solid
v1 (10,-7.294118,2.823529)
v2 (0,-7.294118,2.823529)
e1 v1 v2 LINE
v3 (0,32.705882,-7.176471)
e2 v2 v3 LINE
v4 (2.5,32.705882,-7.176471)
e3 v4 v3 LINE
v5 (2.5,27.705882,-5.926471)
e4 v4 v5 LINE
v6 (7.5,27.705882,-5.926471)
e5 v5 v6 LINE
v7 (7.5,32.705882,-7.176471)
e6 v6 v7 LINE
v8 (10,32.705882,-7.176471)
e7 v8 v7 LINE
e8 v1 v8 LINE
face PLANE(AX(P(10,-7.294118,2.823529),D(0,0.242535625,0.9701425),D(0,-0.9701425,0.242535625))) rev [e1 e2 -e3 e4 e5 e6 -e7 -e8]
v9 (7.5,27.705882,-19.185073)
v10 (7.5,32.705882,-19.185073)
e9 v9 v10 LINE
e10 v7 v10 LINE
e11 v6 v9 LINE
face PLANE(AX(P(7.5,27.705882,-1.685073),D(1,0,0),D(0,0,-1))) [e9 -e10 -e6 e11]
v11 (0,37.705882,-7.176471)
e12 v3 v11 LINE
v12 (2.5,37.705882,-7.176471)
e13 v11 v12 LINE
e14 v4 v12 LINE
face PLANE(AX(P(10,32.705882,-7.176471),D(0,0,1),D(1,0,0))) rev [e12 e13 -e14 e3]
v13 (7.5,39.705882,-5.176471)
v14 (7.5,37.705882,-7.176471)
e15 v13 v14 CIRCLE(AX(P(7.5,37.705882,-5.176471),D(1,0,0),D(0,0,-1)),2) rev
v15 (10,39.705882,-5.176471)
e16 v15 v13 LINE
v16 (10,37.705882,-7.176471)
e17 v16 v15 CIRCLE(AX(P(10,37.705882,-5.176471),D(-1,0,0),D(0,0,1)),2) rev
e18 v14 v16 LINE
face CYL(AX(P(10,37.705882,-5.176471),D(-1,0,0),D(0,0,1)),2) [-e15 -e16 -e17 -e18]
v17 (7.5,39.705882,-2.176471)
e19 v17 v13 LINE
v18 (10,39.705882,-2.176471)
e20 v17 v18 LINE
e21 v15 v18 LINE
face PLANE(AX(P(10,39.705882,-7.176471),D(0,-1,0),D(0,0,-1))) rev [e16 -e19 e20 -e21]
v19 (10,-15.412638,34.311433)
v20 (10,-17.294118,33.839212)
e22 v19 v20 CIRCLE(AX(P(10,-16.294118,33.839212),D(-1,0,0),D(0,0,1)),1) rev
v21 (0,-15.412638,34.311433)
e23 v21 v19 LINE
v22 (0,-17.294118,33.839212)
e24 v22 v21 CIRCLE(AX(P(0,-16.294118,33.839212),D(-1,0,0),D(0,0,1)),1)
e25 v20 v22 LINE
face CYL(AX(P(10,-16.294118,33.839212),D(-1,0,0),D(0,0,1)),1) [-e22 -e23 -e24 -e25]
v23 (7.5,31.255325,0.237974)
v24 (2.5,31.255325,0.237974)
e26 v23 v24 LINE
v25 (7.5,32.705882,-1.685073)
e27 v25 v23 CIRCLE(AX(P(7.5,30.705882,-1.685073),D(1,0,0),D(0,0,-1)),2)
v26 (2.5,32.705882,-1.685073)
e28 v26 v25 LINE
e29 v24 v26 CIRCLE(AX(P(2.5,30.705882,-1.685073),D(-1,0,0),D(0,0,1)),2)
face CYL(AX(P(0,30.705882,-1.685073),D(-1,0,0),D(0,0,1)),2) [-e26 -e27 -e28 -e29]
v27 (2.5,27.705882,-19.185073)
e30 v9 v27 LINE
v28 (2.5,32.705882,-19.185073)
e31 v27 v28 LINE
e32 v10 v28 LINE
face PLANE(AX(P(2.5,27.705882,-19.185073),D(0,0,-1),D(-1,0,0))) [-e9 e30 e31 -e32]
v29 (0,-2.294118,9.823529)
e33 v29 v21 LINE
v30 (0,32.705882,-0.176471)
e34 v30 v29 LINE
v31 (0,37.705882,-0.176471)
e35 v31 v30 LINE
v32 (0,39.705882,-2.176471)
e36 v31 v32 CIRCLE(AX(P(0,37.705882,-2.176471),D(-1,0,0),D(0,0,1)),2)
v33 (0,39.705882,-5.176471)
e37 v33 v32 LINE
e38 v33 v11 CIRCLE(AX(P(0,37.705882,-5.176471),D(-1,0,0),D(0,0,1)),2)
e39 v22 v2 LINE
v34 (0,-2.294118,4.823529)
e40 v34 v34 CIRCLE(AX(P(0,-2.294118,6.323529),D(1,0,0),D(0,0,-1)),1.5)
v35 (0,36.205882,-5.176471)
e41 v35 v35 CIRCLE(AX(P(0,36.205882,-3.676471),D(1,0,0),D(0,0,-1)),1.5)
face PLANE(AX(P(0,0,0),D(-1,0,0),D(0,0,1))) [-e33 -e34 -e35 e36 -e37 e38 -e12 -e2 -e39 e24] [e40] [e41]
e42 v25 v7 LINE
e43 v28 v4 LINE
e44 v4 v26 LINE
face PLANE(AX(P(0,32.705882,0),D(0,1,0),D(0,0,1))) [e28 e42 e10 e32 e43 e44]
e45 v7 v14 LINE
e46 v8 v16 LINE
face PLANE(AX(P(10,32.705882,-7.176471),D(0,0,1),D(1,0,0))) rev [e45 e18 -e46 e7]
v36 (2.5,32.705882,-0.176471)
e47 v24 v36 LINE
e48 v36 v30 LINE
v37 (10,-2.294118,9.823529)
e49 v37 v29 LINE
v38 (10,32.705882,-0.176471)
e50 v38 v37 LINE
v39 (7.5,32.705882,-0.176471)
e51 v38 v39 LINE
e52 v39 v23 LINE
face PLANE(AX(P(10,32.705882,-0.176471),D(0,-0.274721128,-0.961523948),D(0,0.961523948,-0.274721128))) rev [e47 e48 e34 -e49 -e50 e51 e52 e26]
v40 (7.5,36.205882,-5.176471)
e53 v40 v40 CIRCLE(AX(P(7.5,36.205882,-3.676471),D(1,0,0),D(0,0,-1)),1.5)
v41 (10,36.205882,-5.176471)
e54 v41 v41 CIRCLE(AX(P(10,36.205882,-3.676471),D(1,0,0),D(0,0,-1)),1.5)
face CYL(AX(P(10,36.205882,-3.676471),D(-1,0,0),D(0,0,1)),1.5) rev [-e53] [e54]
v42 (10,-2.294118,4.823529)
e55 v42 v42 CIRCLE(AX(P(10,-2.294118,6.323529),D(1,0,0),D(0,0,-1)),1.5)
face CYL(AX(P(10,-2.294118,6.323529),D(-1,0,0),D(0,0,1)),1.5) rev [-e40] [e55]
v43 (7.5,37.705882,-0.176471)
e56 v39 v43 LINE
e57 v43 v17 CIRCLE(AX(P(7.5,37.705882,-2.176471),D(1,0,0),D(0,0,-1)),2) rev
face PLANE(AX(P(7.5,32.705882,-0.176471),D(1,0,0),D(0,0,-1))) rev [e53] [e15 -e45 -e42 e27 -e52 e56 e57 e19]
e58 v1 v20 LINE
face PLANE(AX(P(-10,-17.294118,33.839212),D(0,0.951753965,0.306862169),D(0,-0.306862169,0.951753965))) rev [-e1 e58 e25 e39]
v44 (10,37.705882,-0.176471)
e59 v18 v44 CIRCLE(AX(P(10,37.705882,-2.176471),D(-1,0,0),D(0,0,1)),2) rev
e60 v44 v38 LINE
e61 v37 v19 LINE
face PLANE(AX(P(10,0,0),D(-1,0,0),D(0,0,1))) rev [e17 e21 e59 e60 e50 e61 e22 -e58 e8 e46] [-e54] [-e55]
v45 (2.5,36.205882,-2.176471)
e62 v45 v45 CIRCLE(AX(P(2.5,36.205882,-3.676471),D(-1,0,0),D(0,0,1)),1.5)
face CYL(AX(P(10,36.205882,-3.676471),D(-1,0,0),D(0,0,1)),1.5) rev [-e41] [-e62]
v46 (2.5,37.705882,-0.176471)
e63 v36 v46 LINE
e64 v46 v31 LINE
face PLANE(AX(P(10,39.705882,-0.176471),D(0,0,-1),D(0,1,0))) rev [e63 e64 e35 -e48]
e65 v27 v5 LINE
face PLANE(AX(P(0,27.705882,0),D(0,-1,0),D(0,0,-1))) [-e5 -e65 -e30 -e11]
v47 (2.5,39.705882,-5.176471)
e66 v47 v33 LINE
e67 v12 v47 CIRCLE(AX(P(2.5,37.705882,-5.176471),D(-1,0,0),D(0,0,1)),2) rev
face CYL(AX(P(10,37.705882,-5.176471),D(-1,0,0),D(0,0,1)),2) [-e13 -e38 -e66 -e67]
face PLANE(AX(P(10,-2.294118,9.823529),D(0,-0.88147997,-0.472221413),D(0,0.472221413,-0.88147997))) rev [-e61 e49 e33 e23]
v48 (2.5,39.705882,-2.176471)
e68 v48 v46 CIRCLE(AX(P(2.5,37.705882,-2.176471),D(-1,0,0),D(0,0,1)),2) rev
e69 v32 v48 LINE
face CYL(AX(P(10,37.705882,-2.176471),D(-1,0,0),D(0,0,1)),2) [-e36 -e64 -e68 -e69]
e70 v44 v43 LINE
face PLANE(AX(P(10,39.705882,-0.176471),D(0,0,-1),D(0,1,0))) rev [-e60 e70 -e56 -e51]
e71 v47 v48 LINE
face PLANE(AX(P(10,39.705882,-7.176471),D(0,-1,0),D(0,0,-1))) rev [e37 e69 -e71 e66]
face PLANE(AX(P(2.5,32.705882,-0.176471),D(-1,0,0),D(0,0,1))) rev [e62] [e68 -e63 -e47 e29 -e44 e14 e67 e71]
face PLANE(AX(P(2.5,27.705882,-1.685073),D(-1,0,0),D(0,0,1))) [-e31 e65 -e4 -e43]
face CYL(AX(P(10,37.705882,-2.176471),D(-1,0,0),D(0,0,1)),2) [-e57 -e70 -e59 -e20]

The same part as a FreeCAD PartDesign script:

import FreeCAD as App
import Part
import Sketcher
Q = App.Units.Quantity


def edges_at(feature, points):
    """Names of the edges that pass closest to the given points."""
    edges = feature.Shape.Edges
    near = lambda p: min(range(len(edges)), key=lambda i: edges[i].distToShape(Part.Vertex(*p))[0])
    return sorted({f"Edge{near(p) + 1}" for p in points})

doc = App.newDocument("Part")
body = doc.addObject("PartDesign::Body", "Body")

# Sketch on YZ plane
sketch1 = body.newObject("Sketcher::SketchObject", "Sketch")
sketch1.AttachmentSupport = (doc.getObject("YZ_Plane"), [""])
sketch1.MapMode = "FlatFace"
sketch1.addGeometry(Part.LineSegment(App.Vector(-17.294118, 37.823529, 0), App.Vector(-17.294118, 22.823529, 0)), False)
sketch1.addGeometry(Part.LineSegment(App.Vector(-17.294118, 22.823529, 0), App.Vector(-7.294118, 2.823529, 0)), False)
sketch1.addGeometry(Part.LineSegment(App.Vector(-7.294118, 2.823529, 0), App.Vector(32.705882, -7.176471, 0)), False)
sketch1.addGeometry(Part.LineSegment(App.Vector(32.705882, -7.176471, 0), App.Vector(39.705882, -7.176471, 0)), False)
sketch1.addGeometry(Part.LineSegment(App.Vector(39.705882, -7.176471, 0), App.Vector(39.705882, -0.176471, 0)), False)
sketch1.addGeometry(Part.LineSegment(App.Vector(39.705882, -0.176471, 0), App.Vector(32.705882, -0.176471, 0)), False)
sketch1.addGeometry(Part.LineSegment(App.Vector(32.705882, -0.176471, 0), App.Vector(-2.294118, 9.823529, 0)), False)
sketch1.addGeometry(Part.LineSegment(App.Vector(-2.294118, 9.823529, 0), App.Vector(-17.294118, 37.823529, 0)), False)
sketch1.addGeometry(Part.Circle(App.Vector(-2.294118, 6.323529, 0), App.Vector(0, 0, 1), 1.5), False)
sketch1.addGeometry(Part.Circle(App.Vector(36.205882, -3.676471, 0), App.Vector(0, 0, 1), 1.5), False)
sketch1.addConstraint(Sketcher.Constraint("Coincident", 0, 2, 1, 1))
sketch1.addConstraint(Sketcher.Constraint("Coincident", 1, 2, 2, 1))
sketch1.addConstraint(Sketcher.Constraint("Coincident", 2, 2, 3, 1))
sketch1.addConstraint(Sketcher.Constraint("Coincident", 3, 2, 4, 1))
sketch1.addConstraint(Sketcher.Constraint("Coincident", 4, 2, 5, 1))
sketch1.addConstraint(Sketcher.Constraint("Coincident", 5, 2, 6, 1))
sketch1.addConstraint(Sketcher.Constraint("Coincident", 6, 2, 7, 1))
sketch1.addConstraint(Sketcher.Constraint("Coincident", 7, 2, 0, 1))
sketch1.addConstraint(Sketcher.Constraint("Vertical", 0))
sketch1.addConstraint(Sketcher.Constraint("Horizontal", 3))
sketch1.addConstraint(Sketcher.Constraint("Vertical", 4))
sketch1.addConstraint(Sketcher.Constraint("Horizontal", 5))
sketch1.addConstraint(Sketcher.Constraint("Equal", 8, 9))
sketch1.addConstraint(Sketcher.Constraint("Vertical", 2, 2, 5, 2))
sketch1.addConstraint(Sketcher.Constraint("Vertical", 8, 3, 6, 2))
sketch1.addConstraint(Sketcher.Constraint("Equal", 5, 4))
sketch1.addConstraint(Sketcher.Constraint("Diameter", 8, Q("3 mm")))
sketch1.addConstraint(Sketcher.Constraint("DistanceX", 3, 1, 3, 2, Q("7 mm")))
sketch1.addConstraint(Sketcher.Constraint("DistanceY", 0, 2, 0, 1, Q("15 mm")))
sketch1.addConstraint(Sketcher.Constraint("DistanceY", 9, 3, 8, 3, Q("10 mm")))
sketch1.addConstraint(Sketcher.Constraint("DistanceX", 0, 2, 8, 3, Q("15 mm")))
sketch1.addConstraint(Sketcher.Constraint("DistanceX", 1, 2, 8, 3, Q("5 mm")))
sketch1.addConstraint(Sketcher.Constraint("DistanceY", 1, 2, 0, 2, Q("20 mm")))
sketch1.addConstraint(Sketcher.Constraint("DistanceX", 8, 3, 2, 2, Q("35 mm")))
sketch1.addConstraint(Sketcher.Constraint("DistanceY", 2, 2, 1, 2, Q("10 mm")))
sketch1.addConstraint(Sketcher.Constraint("DistanceY", 1, 2, 6, 2, Q("7 mm")))
sketch1.addConstraint(Sketcher.Constraint("DistanceX", 8, 3, 9, 3, Q("38.5 mm")))
sketch1.addConstraint(Sketcher.Constraint("DistanceY", 8, 3, 0, 2, Q("16.5 mm")))
sketch1.addConstraint(Sketcher.Constraint("DistanceY", -1, 1, 8, 3, Q("6.323529 mm")))
sketch1.addConstraint(Sketcher.Constraint("DistanceX", 8, 3, -1, 1, Q("2.294118 mm")))
pad1 = body.newObject("PartDesign::Pad", "Pad")
pad1.Profile = sketch1
pad1.Length = 10
doc.recompute()

fillet = body.newObject("PartDesign::Fillet", "Fillet")
fillet.Base = (pad1, edges_at(pad1, [(5, -17.294, 37.824)]))
fillet.Radius = 1

# Sketch on XZ plane
sketch2 = body.newObject("Sketcher::SketchObject", "Sketch001")
sketch2.AttachmentSupport = (doc.getObject("XZ_Plane"), [""])
sketch2.MapMode = "FlatFace"
sketch2.AttachmentOffset = App.Placement(App.Vector(0, 0, -39.705882), App.Rotation())
sketch2.addGeometry(Part.LineSegment(App.Vector(2.5, -7.176471, 0), App.Vector(2.5, -0.176471, 0)), False)
sketch2.addGeometry(Part.LineSegment(App.Vector(2.5, -0.176471, 0), App.Vector(7.5, -0.176471, 0)), False)
sketch2.addGeometry(Part.LineSegment(App.Vector(7.5, -0.176471, 0), App.Vector(7.5, -7.176471, 0)), False)
sketch2.addGeometry(Part.LineSegment(App.Vector(7.5, -7.176471, 0), App.Vector(2.5, -7.176471, 0)), False)
sketch2.addConstraint(Sketcher.Constraint("Coincident", 0, 2, 1, 1))
sketch2.addConstraint(Sketcher.Constraint("Coincident", 1, 2, 2, 1))
sketch2.addConstraint(Sketcher.Constraint("Coincident", 2, 2, 3, 1))
sketch2.addConstraint(Sketcher.Constraint("Coincident", 3, 2, 0, 1))
sketch2.addConstraint(Sketcher.Constraint("Vertical", 0))
sketch2.addConstraint(Sketcher.Constraint("Horizontal", 1))
sketch2.addConstraint(Sketcher.Constraint("Vertical", 2))
sketch2.addConstraint(Sketcher.Constraint("Horizontal", 3))
sketch2.addConstraint(Sketcher.Constraint("DistanceX", 1, 1, 1, 2, Q("5 mm")))
sketch2.addConstraint(Sketcher.Constraint("DistanceY", 0, 1, 0, 2, Q("7 mm")))
sketch2.addConstraint(Sketcher.Constraint("DistanceX", -1, 1, 0, 2, Q("2.5 mm")))
sketch2.addConstraint(Sketcher.Constraint("DistanceY", 0, 2, -1, 1, Q("0.176471 mm")))
pocket1 = body.newObject("PartDesign::Pocket", "Pocket")
pocket1.Profile = sketch2
pocket1.Length = 7
pocket1.Reversed = True
doc.recompute()

fillet2 = body.newObject("PartDesign::Fillet", "Fillet001")
fillet2.Base = (pocket1, edges_at(pocket1, [
    (8.75, 39.706, -0.176),
    (8.75, 39.706, -7.176),
    (1.25, 39.706, -0.176),
    (1.25, 39.706, -7.176),
    (5, 32.706, -0.176),
]))
fillet2.Radius = 2

# Sketch on YZ plane
sketch3 = body.newObject("Sketcher::SketchObject", "Sketch002")
sketch3.AttachmentSupport = (doc.getObject("YZ_Plane"), [""])
sketch3.MapMode = "FlatFace"
sketch3.AttachmentOffset = App.Placement(App.Vector(0, 0, 10), App.Rotation())
sketch3.addGeometry(Part.LineSegment(App.Vector(-7.294118, 2.823529, 0), App.Vector(-17.294118, 33.839212, 0)), False)
sketch3.addGeometry(Part.LineSegment(App.Vector(-17.294118, 33.839212, 0), App.Vector(-17.294118, 22.823529, 0)), False)
sketch3.addGeometry(Part.LineSegment(App.Vector(-17.294118, 22.823529, 0), App.Vector(-7.294118, 2.823529, 0)), False)
sketch3.addConstraint(Sketcher.Constraint("Coincident", 0, 2, 1, 1))
sketch3.addConstraint(Sketcher.Constraint("Coincident", 1, 2, 2, 1))
sketch3.addConstraint(Sketcher.Constraint("Coincident", 2, 2, 0, 1))
sketch3.addConstraint(Sketcher.Constraint("Vertical", 1))
sketch3.addConstraint(Sketcher.Constraint("DistanceX", 1, 2, 2, 2, Q("10 mm")))
sketch3.addConstraint(Sketcher.Constraint("DistanceY", 2, 2, 1, 2, Q("20 mm")))
sketch3.addConstraint(Sketcher.Constraint("Distance", 0, Q("32.587921 mm")))
sketch3.addConstraint(Sketcher.Constraint("DistanceY", -1, 1, 1, 2, Q("22.823529 mm")))
sketch3.addConstraint(Sketcher.Constraint("DistanceX", 0, 2, -1, 1, Q("17.294118 mm")))
pocket2 = body.newObject("PartDesign::Pocket", "Pocket001")
pocket2.Profile = sketch3
pocket2.Length = 20

# Sketch on XZ plane
sketch4 = body.newObject("Sketcher::SketchObject", "Sketch003")
sketch4.AttachmentSupport = (doc.getObject("XZ_Plane"), [""])
sketch4.MapMode = "FlatFace"
sketch4.AttachmentOffset = App.Placement(App.Vector(0, 0, -32.705882), App.Rotation())
sketch4.addGeometry(Part.LineSegment(App.Vector(2.5, -19.185073, 0), App.Vector(2.5, -1.685073, 0)), False)
sketch4.addGeometry(Part.LineSegment(App.Vector(2.5, -1.685073, 0), App.Vector(7.5, -1.685073, 0)), False)
sketch4.addGeometry(Part.LineSegment(App.Vector(7.5, -1.685073, 0), App.Vector(7.5, -19.185073, 0)), False)
sketch4.addGeometry(Part.LineSegment(App.Vector(7.5, -19.185073, 0), App.Vector(2.5, -19.185073, 0)), False)
sketch4.addConstraint(Sketcher.Constraint("Coincident", 0, 2, 1, 1))
sketch4.addConstraint(Sketcher.Constraint("Coincident", 1, 2, 2, 1))
sketch4.addConstraint(Sketcher.Constraint("Coincident", 2, 2, 3, 1))
sketch4.addConstraint(Sketcher.Constraint("Coincident", 3, 2, 0, 1))
sketch4.addConstraint(Sketcher.Constraint("Vertical", 0))
sketch4.addConstraint(Sketcher.Constraint("Horizontal", 1))
sketch4.addConstraint(Sketcher.Constraint("Vertical", 2))
sketch4.addConstraint(Sketcher.Constraint("Horizontal", 3))
sketch4.addConstraint(Sketcher.Constraint("DistanceX", 1, 1, 1, 2, Q("5 mm")))
sketch4.addConstraint(Sketcher.Constraint("DistanceY", 0, 1, 0, 2, Q("17.5 mm")))
sketch4.addConstraint(Sketcher.Constraint("DistanceX", -1, 1, 0, 2, Q("2.5 mm")))
sketch4.addConstraint(Sketcher.Constraint("DistanceY", 0, 2, -1, 1, Q("1.685073 mm")))
pad2 = body.newObject("PartDesign::Pad", "Pad001")
pad2.Profile = sketch4
pad2.Length = 5

doc.recompute()
